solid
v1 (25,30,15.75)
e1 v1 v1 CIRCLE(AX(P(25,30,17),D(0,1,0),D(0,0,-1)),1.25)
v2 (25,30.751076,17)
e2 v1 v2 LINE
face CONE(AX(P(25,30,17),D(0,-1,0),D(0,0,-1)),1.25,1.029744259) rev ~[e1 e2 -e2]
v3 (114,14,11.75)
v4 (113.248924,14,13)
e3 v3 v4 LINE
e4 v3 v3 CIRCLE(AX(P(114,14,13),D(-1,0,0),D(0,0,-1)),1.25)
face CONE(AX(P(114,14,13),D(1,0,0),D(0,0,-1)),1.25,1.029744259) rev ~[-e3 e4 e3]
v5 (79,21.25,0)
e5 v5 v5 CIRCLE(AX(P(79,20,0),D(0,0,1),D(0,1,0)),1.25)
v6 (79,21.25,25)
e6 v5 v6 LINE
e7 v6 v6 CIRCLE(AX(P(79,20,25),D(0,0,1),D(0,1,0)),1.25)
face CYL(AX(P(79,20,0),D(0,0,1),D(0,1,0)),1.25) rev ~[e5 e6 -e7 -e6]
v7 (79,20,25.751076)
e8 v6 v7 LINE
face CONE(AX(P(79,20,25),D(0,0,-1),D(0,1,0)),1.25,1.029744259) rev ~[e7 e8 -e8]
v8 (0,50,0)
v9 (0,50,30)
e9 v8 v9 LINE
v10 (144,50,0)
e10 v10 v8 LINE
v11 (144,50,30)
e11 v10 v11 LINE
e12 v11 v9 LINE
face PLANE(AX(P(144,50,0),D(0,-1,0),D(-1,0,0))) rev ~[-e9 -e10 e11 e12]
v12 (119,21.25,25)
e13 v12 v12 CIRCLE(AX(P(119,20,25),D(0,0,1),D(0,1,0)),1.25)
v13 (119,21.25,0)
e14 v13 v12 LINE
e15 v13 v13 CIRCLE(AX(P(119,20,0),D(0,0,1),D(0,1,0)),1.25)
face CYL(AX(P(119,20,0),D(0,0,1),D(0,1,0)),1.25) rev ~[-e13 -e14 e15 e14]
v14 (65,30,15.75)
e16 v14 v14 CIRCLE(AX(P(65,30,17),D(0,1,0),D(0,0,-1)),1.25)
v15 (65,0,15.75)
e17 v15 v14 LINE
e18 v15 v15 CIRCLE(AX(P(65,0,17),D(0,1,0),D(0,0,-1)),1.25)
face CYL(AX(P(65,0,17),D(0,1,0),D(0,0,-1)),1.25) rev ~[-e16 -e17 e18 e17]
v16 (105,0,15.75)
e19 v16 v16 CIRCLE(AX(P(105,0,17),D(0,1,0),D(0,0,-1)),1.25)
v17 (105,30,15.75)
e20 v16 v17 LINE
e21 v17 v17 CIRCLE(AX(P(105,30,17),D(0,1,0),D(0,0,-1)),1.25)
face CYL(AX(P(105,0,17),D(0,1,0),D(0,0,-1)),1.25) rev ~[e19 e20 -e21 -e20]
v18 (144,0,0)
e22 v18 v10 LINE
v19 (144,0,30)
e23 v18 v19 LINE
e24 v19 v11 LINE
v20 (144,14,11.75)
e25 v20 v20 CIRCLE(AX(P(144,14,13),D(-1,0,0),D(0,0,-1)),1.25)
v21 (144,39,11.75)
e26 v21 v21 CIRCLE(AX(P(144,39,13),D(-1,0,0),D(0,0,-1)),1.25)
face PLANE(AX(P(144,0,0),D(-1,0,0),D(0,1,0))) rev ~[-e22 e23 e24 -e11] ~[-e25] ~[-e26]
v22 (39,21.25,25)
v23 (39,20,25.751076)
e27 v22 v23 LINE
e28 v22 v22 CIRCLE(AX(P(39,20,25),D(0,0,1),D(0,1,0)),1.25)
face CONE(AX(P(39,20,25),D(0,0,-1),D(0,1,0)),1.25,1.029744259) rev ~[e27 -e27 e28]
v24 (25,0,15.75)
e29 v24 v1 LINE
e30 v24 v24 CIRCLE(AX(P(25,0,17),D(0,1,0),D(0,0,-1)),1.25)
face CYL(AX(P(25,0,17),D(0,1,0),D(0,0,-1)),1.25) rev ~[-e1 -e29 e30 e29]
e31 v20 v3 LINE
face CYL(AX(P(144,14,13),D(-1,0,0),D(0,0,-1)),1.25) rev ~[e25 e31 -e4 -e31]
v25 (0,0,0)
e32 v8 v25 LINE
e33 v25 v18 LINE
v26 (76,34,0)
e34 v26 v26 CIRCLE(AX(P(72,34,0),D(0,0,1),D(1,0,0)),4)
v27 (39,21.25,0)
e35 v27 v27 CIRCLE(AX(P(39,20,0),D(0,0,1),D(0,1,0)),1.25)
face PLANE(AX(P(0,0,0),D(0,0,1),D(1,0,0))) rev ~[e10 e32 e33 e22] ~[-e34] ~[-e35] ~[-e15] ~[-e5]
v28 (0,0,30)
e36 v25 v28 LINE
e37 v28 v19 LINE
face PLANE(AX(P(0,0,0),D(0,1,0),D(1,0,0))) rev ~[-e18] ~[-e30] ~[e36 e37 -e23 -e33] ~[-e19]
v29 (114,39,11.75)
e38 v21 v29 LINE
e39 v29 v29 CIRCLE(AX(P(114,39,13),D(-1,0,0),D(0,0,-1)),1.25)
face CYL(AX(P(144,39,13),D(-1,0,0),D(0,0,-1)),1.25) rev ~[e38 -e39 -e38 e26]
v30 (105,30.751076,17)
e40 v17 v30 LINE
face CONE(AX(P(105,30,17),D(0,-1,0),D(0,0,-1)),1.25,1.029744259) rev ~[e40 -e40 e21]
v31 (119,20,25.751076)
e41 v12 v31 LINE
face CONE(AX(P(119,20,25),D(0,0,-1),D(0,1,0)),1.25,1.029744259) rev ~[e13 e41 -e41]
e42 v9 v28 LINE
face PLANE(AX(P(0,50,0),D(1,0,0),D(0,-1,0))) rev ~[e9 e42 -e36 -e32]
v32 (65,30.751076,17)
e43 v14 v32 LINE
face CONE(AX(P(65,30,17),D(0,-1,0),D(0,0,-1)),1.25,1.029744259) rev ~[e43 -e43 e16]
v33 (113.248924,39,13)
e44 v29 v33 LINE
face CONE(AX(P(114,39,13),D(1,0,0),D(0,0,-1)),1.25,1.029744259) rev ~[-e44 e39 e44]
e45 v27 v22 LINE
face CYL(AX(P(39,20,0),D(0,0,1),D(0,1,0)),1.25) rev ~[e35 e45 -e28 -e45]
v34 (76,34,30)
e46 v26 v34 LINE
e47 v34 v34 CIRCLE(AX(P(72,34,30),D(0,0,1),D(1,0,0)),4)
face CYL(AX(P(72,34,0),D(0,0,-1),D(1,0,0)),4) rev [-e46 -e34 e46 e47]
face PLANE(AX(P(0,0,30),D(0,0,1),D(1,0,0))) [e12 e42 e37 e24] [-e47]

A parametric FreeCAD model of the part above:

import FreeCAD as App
import Part
import Sketcher

V = App.Vector
Q = App.Units.Quantity


def add_polygon(sketch, points):
    """Adds a closed chain of lines whose ends are joined by coincident constraints."""
    first, n = sketch.GeometryCount, len(points)
    for a, b in zip(points, points[1:] + points[:1]):
        sketch.addGeometry(Part.LineSegment(App.Vector(*a, 0), App.Vector(*b, 0)), False)
    for i in range(n):
        sketch.addConstraint(Sketcher.Constraint("Coincident", first + i, 2, first + (i + 1) % n, 1))

doc = App.newDocument("Part")
body = doc.addObject("PartDesign::Body", "Body")

# Sketch on XY plane
sketch1 = doc.addObject("Sketcher::SketchObject", "Sketch")
body.addObject(sketch1)
sketch1.AttachmentSupport = (doc.XY_Plane, [""])
sketch1.MapMode = "FlatFace"
add_polygon(sketch1, [(0, 50), (0, 0), (144, 0), (144, 50)])  # lines 0-3
sketch1.addGeometry(Part.Circle(V(72, 34, 0), V(0, 0, 1), 4), False)  # 4
sketch1.addConstraint([
    Sketcher.Constraint("Vertical", 0),
    Sketcher.Constraint("Horizontal", 1),
    Sketcher.Constraint("Vertical", 2),
    Sketcher.Constraint("Horizontal", 3),
    Sketcher.Constraint("Coincident", 0, 2, -1, 1),
    Sketcher.Constraint("Diameter", 4, Q("8 mm")),
    Sketcher.Constraint("DistanceX", 1, 1, 1, 2, Q("144 mm")),
    Sketcher.Constraint("DistanceY", 0, 2, 0, 1, Q("50 mm")),
    Sketcher.Constraint("DistanceY", -1, 1, 4, 3, Q("34 mm")),
    Sketcher.Constraint("DistanceX", -1, 1, 4, 3, Q("72 mm")),
])
pad1 = doc.addObject("PartDesign::Pad", "Pad")
body.addObject(pad1)
pad1.Profile = sketch1
pad1.Length = 30

# Sketch on XY plane
sketch2 = doc.addObject("Sketcher::SketchObject", "Sketch001")
body.addObject(sketch2)
sketch2.AttachmentSupport = (doc.XY_Plane, [""])
sketch2.MapMode = "FlatFace"
sketch2.addGeometry([
    Part.Circle(V(79, 20, 0), V(0, 0, 1), 1.2),
    Part.Circle(V(119, 20, 0), V(0, 0, 1), 1.2),
    Part.Circle(V(39, 20, 0), V(0, 0, 1), 1.2),
], False)
sketch2.addConstraint([
    Sketcher.Constraint("Equal", 0, 1),
    Sketcher.Constraint("Equal", 1, 2),
    Sketcher.Constraint("Horizontal", 0, 3, 1, 3),
    Sketcher.Constraint("Horizontal", 1, 3, 2, 3),
    Sketcher.Constraint("Diameter", 0, Q("2.5 mm")),
    Sketcher.Constraint("DistanceX", -1, 1, 0, 3, Q("79 mm")),
    Sketcher.Constraint("DistanceY", -1, 1, 0, 3, Q("20 mm")),
    Sketcher.Constraint("DistanceX", -1, 1, 1, 3, Q("119 mm")),
    Sketcher.Constraint("DistanceX", -1, 1, 2, 3, Q("39 mm")),
])
doc.recompute()
hole = doc.addObject("PartDesign::Hole", "Hole")
body.addObject(hole)
hole.Profile = sketch2
hole.ThreadType = "None"
hole.Diameter = 2.5
hole.DepthType = "Dimension"
hole.Depth = 25
hole.DrillPoint = "Angled"
hole.DrillPointAngle = 118
hole.Reversed = True

# Sketch on XZ plane
sketch3 = doc.addObject("Sketcher::SketchObject", "Sketch002")
body.addObject(sketch3)
sketch3.AttachmentSupport = (doc.XZ_Plane, [""])
sketch3.MapMode = "FlatFace"
sketch3.addGeometry([
    Part.Circle(V(25, 17, 0), V(0, 0, 1), 1.2),
    Part.Circle(V(65, 17, 0), V(0, 0, 1), 1.2),
    Part.Circle(V(105, 17, 0), V(0, 0, 1), 1.2),
], False)
sketch3.addConstraint([
    Sketcher.Constraint("Equal", 0, 1),
    Sketcher.Constraint("Equal", 1, 2),
    Sketcher.Constraint("Horizontal", 0, 3, 1, 3),
    Sketcher.Constraint("Horizontal", 1, 3, 2, 3),
    Sketcher.Constraint("Diameter", 0, Q("2.5 mm")),
    Sketcher.Constraint("DistanceX", -1, 1, 0, 3, Q("25 mm")),
    Sketcher.Constraint("DistanceY", -1, 1, 0, 3, Q("17 mm")),
    Sketcher.Constraint("DistanceX", -1, 1, 1, 3, Q("65 mm")),
    Sketcher.Constraint("DistanceX", -1, 1, 2, 3, Q("105 mm")),
])
doc.recompute()
hole2 = doc.addObject("PartDesign::Hole", "Hole001")
body.addObject(hole2)
hole2.Profile = sketch3
hole2.ThreadType = "None"
hole2.Diameter = 2.5
hole2.DepthType = "Dimension"
hole2.Depth = 30
hole2.DrillPoint = "Angled"
hole2.DrillPointAngle = 118

# Sketch on YZ plane
sketch4 = doc.addObject("Sketcher::SketchObject", "Sketch003")
body.addObject(sketch4)
sketch4.AttachmentSupport = (doc.YZ_Plane, [""])
sketch4.MapMode = "FlatFace"
sketch4.AttachmentOffset = App.Placement(V(0, 0, 144), App.Rotation())
sketch4.addGeometry([
    Part.Circle(V(14, 13, 0), V(0, 0, 1), 1.2),
    Part.Circle(V(39, 13, 0), V(0, 0, 1), 1.2),
], False)
sketch4.addConstraint([
    Sketcher.Constraint("Equal", 0, 1),
    Sketcher.Constraint("Horizontal", 0, 3, 1, 3),
    Sketcher.Constraint("Diameter", 0, Q("2.5 mm")),
    Sketcher.Constraint("DistanceX", -1, 1, 0, 3, Q("14 mm")),
    Sketcher.Constraint("DistanceY", -1, 1, 0, 3, Q("13 mm")),
    Sketcher.Constraint("DistanceX", -1, 1, 1, 3, Q("39 mm")),
])
doc.recompute()
hole3 = doc.addObject("PartDesign::Hole", "Hole002")
body.addObject(hole3)
hole3.Profile = sketch4
hole3.ThreadType = "None"
hole3.Diameter = 2.5
hole3.DepthType = "Dimension"
hole3.Depth = 30
hole3.DrillPoint = "Angled"
hole3.DrillPointAngle = 118

doc.recompute()
